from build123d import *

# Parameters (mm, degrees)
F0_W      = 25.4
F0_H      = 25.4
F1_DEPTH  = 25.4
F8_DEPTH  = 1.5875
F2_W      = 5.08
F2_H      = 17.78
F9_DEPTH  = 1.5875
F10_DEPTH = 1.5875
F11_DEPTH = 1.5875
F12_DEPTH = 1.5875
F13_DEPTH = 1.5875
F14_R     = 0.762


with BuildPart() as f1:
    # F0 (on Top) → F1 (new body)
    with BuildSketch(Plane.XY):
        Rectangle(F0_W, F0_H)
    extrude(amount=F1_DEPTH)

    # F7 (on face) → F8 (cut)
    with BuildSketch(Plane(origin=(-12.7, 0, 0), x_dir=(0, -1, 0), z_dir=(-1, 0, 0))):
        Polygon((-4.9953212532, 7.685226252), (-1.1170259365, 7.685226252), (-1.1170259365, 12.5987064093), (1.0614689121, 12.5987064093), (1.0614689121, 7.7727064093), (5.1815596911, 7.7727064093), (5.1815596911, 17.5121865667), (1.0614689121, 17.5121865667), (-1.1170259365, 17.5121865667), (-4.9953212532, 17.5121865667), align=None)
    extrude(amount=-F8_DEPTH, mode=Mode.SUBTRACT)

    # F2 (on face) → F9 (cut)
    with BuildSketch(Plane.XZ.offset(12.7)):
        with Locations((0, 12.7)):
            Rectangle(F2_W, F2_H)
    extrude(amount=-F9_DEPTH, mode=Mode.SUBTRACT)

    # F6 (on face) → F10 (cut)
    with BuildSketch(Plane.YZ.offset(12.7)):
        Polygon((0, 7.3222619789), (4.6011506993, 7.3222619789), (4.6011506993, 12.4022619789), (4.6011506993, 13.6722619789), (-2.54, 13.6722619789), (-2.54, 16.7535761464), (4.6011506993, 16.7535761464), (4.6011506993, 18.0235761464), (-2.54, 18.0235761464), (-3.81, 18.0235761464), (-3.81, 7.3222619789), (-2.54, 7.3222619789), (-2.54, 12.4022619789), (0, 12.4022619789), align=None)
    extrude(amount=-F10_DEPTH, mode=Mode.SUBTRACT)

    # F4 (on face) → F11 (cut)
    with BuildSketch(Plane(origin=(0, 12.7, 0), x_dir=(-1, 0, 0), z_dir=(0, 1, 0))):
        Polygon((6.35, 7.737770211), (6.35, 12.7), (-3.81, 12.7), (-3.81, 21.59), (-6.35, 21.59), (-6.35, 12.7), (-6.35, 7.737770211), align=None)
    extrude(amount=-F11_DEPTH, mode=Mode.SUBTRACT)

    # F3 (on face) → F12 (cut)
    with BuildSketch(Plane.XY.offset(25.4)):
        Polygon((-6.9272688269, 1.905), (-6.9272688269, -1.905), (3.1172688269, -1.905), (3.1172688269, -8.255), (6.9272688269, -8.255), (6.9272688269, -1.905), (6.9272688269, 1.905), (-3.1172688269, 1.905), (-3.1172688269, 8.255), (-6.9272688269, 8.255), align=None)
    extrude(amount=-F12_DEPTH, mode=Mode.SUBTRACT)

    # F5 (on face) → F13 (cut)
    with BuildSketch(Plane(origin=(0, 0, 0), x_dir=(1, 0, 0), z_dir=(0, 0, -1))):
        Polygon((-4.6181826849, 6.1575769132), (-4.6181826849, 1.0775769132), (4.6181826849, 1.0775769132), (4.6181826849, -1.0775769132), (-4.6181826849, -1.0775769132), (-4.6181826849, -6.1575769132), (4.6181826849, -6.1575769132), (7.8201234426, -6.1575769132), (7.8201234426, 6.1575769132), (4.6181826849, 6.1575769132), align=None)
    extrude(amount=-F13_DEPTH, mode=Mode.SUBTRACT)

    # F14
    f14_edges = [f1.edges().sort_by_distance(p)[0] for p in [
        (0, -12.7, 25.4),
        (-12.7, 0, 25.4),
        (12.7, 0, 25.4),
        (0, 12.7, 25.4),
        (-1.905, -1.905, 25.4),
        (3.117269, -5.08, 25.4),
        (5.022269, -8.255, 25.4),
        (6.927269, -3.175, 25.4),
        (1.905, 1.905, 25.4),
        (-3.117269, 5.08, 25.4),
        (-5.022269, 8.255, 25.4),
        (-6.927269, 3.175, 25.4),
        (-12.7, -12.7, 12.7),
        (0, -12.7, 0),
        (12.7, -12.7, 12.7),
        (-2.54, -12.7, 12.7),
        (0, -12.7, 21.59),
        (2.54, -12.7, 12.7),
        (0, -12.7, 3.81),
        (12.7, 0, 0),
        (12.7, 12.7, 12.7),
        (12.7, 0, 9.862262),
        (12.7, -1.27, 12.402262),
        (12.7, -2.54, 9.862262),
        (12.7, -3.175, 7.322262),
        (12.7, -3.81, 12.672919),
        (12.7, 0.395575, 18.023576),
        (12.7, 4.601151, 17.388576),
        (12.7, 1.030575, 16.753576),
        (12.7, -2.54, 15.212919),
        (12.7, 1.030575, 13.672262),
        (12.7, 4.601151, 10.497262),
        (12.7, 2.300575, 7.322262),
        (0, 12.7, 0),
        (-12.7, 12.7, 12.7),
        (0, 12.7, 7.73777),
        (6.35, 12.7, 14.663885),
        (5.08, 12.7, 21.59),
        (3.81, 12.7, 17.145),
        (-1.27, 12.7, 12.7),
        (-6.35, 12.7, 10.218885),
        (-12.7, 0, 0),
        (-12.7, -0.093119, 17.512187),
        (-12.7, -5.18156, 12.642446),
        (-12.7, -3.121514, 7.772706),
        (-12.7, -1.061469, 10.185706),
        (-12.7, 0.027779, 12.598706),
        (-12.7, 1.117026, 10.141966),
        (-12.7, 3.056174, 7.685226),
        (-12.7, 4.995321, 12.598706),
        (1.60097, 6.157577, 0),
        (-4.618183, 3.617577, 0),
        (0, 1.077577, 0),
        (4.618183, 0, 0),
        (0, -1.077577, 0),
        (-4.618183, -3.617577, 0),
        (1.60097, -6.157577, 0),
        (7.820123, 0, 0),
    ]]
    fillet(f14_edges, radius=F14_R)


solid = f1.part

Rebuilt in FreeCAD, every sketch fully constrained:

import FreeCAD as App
import Part
import Sketcher
from FreeCAD import Vector
Q = App.Units.Quantity


def edges_at(feature, points):
    """Names of the edges that pass closest to the given points."""
    edges = feature.Shape.Edges
    near = lambda p: min(range(len(edges)), key=lambda i: edges[i].distToShape(Part.Vertex(*p))[0])
    return sorted({f"Edge{near(p) + 1}" for p in points})


def add_polygon(sketch, points):
    """Adds a closed chain of lines whose ends are joined by coincident constraints."""
    first, n = sketch.GeometryCount, len(points)
    for a, b in zip(points, points[1:] + points[:1]):
        sketch.addGeometry(Part.LineSegment(App.Vector(*a, 0), App.Vector(*b, 0)), False)
    for i in range(n):
        sketch.addConstraint(Sketcher.Constraint("Coincident", first + i, 2, first + (i + 1) % n, 1))

doc = App.newDocument("Part")
body = doc.addObject("PartDesign::Body", "Body")

# Sketch on XY plane
sketch1 = doc.addObject("Sketcher::SketchObject", "Sketch")
body.addObject(sketch1)
sketch1.AttachmentSupport = (doc.XY_Plane, [""])
sketch1.MapMode = "FlatFace"
add_polygon(sketch1, [(-13, 13), (-13, -13), (13, -13), (13, 13)])  # lines 0-3
sketch1.addConstraint([
    Sketcher.Constraint("Vertical", 0),
    Sketcher.Constraint("Horizontal", 1),
    Sketcher.Constraint("Vertical", 2),
    Sketcher.Constraint("Horizontal", 3),
    Sketcher.Constraint("Symmetric", 0, 2, 2, 2, -1, 1),
    Sketcher.Constraint("Equal", 3, 0),
    Sketcher.Constraint("DistanceX", 1, 1, 1, 2, Q("1 in")),
])
pad1 = doc.addObject("PartDesign::Pad", "Pad")
body.addObject(pad1)
pad1.Profile = sketch1
pad1.Length = Q("1 in")

# Sketch on YZ plane
sketch2 = doc.addObject("Sketcher::SketchObject", "Sketch001")
body.addObject(sketch2)
sketch2.AttachmentSupport = (doc.YZ_Plane, [""])
sketch2.MapMode = "FlatFace"
sketch2.AttachmentOffset = App.Placement(Vector(0, 0, -0.5 * 25.4), App.Rotation())
add_polygon(sketch2, [(5, 7.7), (1.1, 7.7), (1.1, 12.6), (-1.1, 12.6), (-1.1, 7.8), (-5.2, 7.8), (-5.2, 17.5), (5, 17.5)])  # lines 0-7
sketch2.addConstraint([
    Sketcher.Constraint("Horizontal", 0),
    Sketcher.Constraint("Vertical", 1),
    Sketcher.Constraint("Horizontal", 2),
    Sketcher.Constraint("Vertical", 3),
    Sketcher.Constraint("Horizontal", 4),
    Sketcher.Constraint("Vertical", 5),
    Sketcher.Constraint("Horizontal", 6),
    Sketcher.Constraint("Vertical", 7),
    Sketcher.Constraint("DistanceY", 3, 2, 3, 1, Q("0.19 in")),
    Sketcher.Constraint("DistanceX", 4, 2, 4, 1, 4.120091),
    Sketcher.Constraint("DistanceX", 6, 1, 6, 2, 10.176881),
    Sketcher.Constraint("DistanceY", 1, 1, 1, 2, 4.91348),
    Sketcher.Constraint("DistanceY", 5, 1, 5, 2, 9.73948),
    Sketcher.Constraint("DistanceX", 0, 2, 0, 1, 3.878295),
    Sketcher.Constraint("DistanceX", 2, 2, -1, 1, 1.061469),
    Sketcher.Constraint("DistanceY", -1, 1, 0, 2, 7.685226),
])
pocket1 = doc.addObject("PartDesign::Pocket", "Pocket")
body.addObject(pocket1)
pocket1.Profile = sketch2
pocket1.Length = Q("0.0625 in")
pocket1.Reversed = True

# Sketch on XZ plane
sketch3 = doc.addObject("Sketcher::SketchObject", "Sketch002")
body.addObject(sketch3)
sketch3.AttachmentSupport = (doc.XZ_Plane, [""])
sketch3.MapMode = "FlatFace"
sketch3.AttachmentOffset = App.Placement(Vector(0, 0, 0.5 * 25.4), App.Rotation())
add_polygon(sketch3, [(-3, 22), (-3, 4), (3, 4), (3, 22)])  # lines 0-3
sketch3.addConstraint([
    Sketcher.Constraint("Vertical", 0),
    Sketcher.Constraint("Horizontal", 1),
    Sketcher.Constraint("Vertical", 2),
    Sketcher.Constraint("Horizontal", 3),
    Sketcher.Constraint("DistanceX", 1, 1, 1, 2, Q("0.2 in")),
    Sketcher.Constraint("DistanceY", 0, 2, 0, 1, Q("0.7 in")),
    Sketcher.Constraint("DistanceX", 0, 2, -1, 1, Q("0.1 in")),
    Sketcher.Constraint("DistanceY", -1, 1, 0, 2, Q("0.15 in")),
])
pocket2 = doc.addObject("PartDesign::Pocket", "Pocket001")
body.addObject(pocket2)
pocket2.Profile = sketch3
pocket2.Length = Q("0.0625 in")

# Sketch on YZ plane
sketch4 = doc.addObject("Sketcher::SketchObject", "Sketch003")
body.addObject(sketch4)
sketch4.AttachmentSupport = (doc.YZ_Plane, [""])
sketch4.MapMode = "FlatFace"
sketch4.AttachmentOffset = App.Placement(Vector(0, 0, 0.5 * 25.4), App.Rotation())
add_polygon(sketch4, [(0, 7.3), (4.6, 7.3), (4.6, 13.7), (-2.5, 13.7), (-2.5, 16.8), (4.6, 16.8), (4.6, 18), (-3.8, 18), (-3.8, 7.3), (-2.5, 7.3), (-2.5, 12.4), (0, 12.4)])  # lines 0-11
sketch4.addConstraint([
    Sketcher.Constraint("Horizontal", 0),
    Sketcher.Constraint("Vertical", 1),
    Sketcher.Constraint("Horizontal", 2),
    Sketcher.Constraint("Vertical", 3),
    Sketcher.Constraint("Horizontal", 4),
    Sketcher.Constraint("Vertical", 5),
    Sketcher.Constraint("Horizontal", 6),
    Sketcher.Constraint("Vertical", 7),
    Sketcher.Constraint("Horizontal", 8),
    Sketcher.Constraint("Vertical", 9),
    Sketcher.Constraint("Horizontal", 10),
    Sketcher.Constraint("Vertical", 11),
    Sketcher.Constraint("PointOnObject", 10, 2, -2),
    Sketcher.Constraint("Horizontal", 0, 2, 7, 2),
    Sketcher.Constraint("Vertical", 1, 2, 4, 2),
    Sketcher.Constraint("Vertical", 3, 2, 8, 2),
    Sketcher.Constraint("Equal", 8, 5),
    Sketcher.Constraint("DistanceX", 10, 1, 10, 2, Q("0.1 in")),
    Sketcher.Constraint("DistanceY", 9, 1, 9, 2, Q("0.2 in")),
    Sketcher.Constraint("DistanceX", 8, 1, 8, 2, Q("0.05 in")),
    Sketcher.Constraint("DistanceY", 1, 1, 1, 2, Q("0.25 in")),
    Sketcher.Constraint("DistanceX", 0, 1, 0, 2, 4.601151),
    Sketcher.Constraint("DistanceY", 3, 1, 3, 2, 3.081314),
    Sketcher.Constraint("DistanceY", -1, 1, 0, 2, 7.322262),
])
pocket3 = doc.addObject("PartDesign::Pocket", "Pocket002")
body.addObject(pocket3)
pocket3.Profile = sketch4
pocket3.Length = Q("0.0625 in")

# Sketch on XZ plane
sketch5 = doc.addObject("Sketcher::SketchObject", "Sketch004")
body.addObject(sketch5)
sketch5.AttachmentSupport = (doc.XZ_Plane, [""])
sketch5.MapMode = "FlatFace"
sketch5.AttachmentOffset = App.Placement(Vector(0, 0, -0.5 * 25.4), App.Rotation())
add_polygon(sketch5, [(-6.3, 7.7), (-6.3, 12.7), (3.8, 12.7), (3.8, 21.6), (6.3, 21.6), (6.3, 7.7)])  # lines 0-5
sketch5.addConstraint([
    Sketcher.Constraint("Vertical", 0),
    Sketcher.Constraint("Horizontal", 1),
    Sketcher.Constraint("Vertical", 2),
    Sketcher.Constraint("Horizontal", 3),
    Sketcher.Constraint("Vertical", 4),
    Sketcher.Constraint("Horizontal", 5),
    Sketcher.Constraint("DistanceX", 1, 1, 1, 2, Q("0.4 in")),
    Sketcher.Constraint("DistanceX", 3, 1, 3, 2, Q("0.1 in")),
    Sketcher.Constraint("DistanceY", 2, 1, 2, 2, Q("0.35 in")),
    Sketcher.Constraint("DistanceY", -1, 1, 0, 2, Q("0.5 in")),
    Sketcher.Constraint("DistanceX", 0, 2, -1, 1, Q("0.25 in")),
    Sketcher.Constraint("DistanceY", 0, 1, 0, 2, 4.96223),
])
pocket4 = doc.addObject("PartDesign::Pocket", "Pocket003")
body.addObject(pocket4)
pocket4.Profile = sketch5
pocket4.Length = Q("0.0625 in")
pocket4.Reversed = True

# Sketch on XY plane
sketch6 = doc.addObject("Sketcher::SketchObject", "Sketch005")
body.addObject(sketch6)
sketch6.AttachmentSupport = (doc.XY_Plane, [""])
sketch6.MapMode = "FlatFace"
sketch6.AttachmentOffset = App.Placement(Vector(0, 0, 1 * 25.4), App.Rotation())
add_polygon(sketch6, [(-6.9, -1.9), (3.1, -1.9), (3.1, -8.3), (6.9, -8.3), (6.9, 1.9), (-3.1, 1.9), (-3.1, 8.3), (-6.9, 8.3)])  # lines 0-7
sketch6.addConstraint([
    Sketcher.Constraint("Horizontal", 0),
    Sketcher.Constraint("Vertical", 1),
    Sketcher.Constraint("Horizontal", 2),
    Sketcher.Constraint("Vertical", 3),
    Sketcher.Constraint("Horizontal", 4),
    Sketcher.Constraint("Vertical", 5),
    Sketcher.Constraint("Horizontal", 6),
    Sketcher.Constraint("Vertical", 7),
    Sketcher.Constraint("Symmetric", 0, 2, 4, 2, -1, 1),
    Sketcher.Constraint("Symmetric", 2, 2, 6, 2, -1, 1),
    Sketcher.Constraint("DistanceY", 3, 1, 3, 2, Q("0.4 in")),
    Sketcher.Constraint("DistanceX", 2, 1, 2, 2, Q("0.15 in")),
    Sketcher.Constraint("DistanceY", 1, 2, 1, 1, Q("0.25 in")),
    Sketcher.Constraint("DistanceX", 0, 1, 0, 2, 10.044538),
])
pocket5 = doc.addObject("PartDesign::Pocket", "Pocket004")
body.addObject(pocket5)
pocket5.Profile = sketch6
pocket5.Length = Q("0.0625 in")

# Sketch on XY plane
sketch7 = doc.addObject("Sketcher::SketchObject", "Sketch006")
body.addObject(sketch7)
sketch7.AttachmentSupport = (doc.XY_Plane, [""])
sketch7.MapMode = "FlatFace"
add_polygon(sketch7, [(-4.6, -6.2), (-4.6, -1.1), (4.6, -1.1), (4.6, 1.1), (-4.6, 1.1), (-4.6, 6.2), (7.8, 6.2), (7.8, -6.2)])  # lines 0-7
sketch7.addConstraint([
    Sketcher.Constraint("Vertical", 0),
    Sketcher.Constraint("Horizontal", 1),
    Sketcher.Constraint("Vertical", 2),
    Sketcher.Constraint("Horizontal", 3),
    Sketcher.Constraint("Vertical", 4),
    Sketcher.Constraint("Horizontal", 5),
    Sketcher.Constraint("Vertical", 6),
    Sketcher.Constraint("Horizontal", 7),
    Sketcher.Constraint("Symmetric", 0, 2, 2, 2, -1, 1),
    Sketcher.Constraint("Symmetric", 4, 2, 7, 2, -1),
    Sketcher.Constraint("DistanceY", 0, 1, 0, 2, Q("0.2 in")),
    Sketcher.Constraint("DistanceX", 1, 1, 1, 2, 9.236365),
    Sketcher.Constraint("DistanceX", 5, 1, 5, 2, 12.438306),
    Sketcher.Constraint("DistanceY", 2, 1, 2, 2, 2.155154),
])
pocket6 = doc.addObject("PartDesign::Pocket", "Pocket005")
body.addObject(pocket6)
pocket6.Profile = sketch7
pocket6.Length = Q("0.0625 in")
pocket6.Reversed = True
doc.recompute()

fillet = doc.addObject("PartDesign::Fillet", "Fillet")
body.addObject(fillet)
fillet.Base = (pocket6, edges_at(pocket6, [
    (0, -12.7, 25.4),
    (-12.7, 0, 25.4),
    (12.7, 0, 25.4),
    (0, 12.7, 25.4),
    (-1.905, -1.905, 25.4),
    (3.117, -5.08, 25.4),
    (5.022, -8.255, 25.4),
    (6.927, -3.175, 25.4),
    (1.905, 1.905, 25.4),
    (-3.117, 5.08, 25.4),
    (-5.022, 8.255, 25.4),
    (-6.927, 3.175, 25.4),
    (-12.7, -12.7, 12.7),
    (0, -12.7, 0),
    (12.7, -12.7, 12.7),
    (-2.54, -12.7, 12.7),
    (0, -12.7, 21.59),
    (2.54, -12.7, 12.7),
    (0, -12.7, 3.81),
    (12.7, 0, 0),
    (12.7, 12.7, 12.7),
    (12.7, 0, 9.862),
    (12.7, -1.27, 12.402),
    (12.7, -2.54, 9.862),
    (12.7, -3.175, 7.322),
    (12.7, -3.81, 12.673),
    (12.7, 0.396, 18.024),
    (12.7, 4.601, 17.389),
    (12.7, 1.031, 16.754),
    (12.7, -2.54, 15.213),
    (12.7, 1.031, 13.672),
    (12.7, 4.601, 10.497),
    (12.7, 2.301, 7.322),
    (0, 12.7, 0),
    (-12.7, 12.7, 12.7),
    (0, 12.7, 7.738),
    (6.35, 12.7, 14.664),
    (5.08, 12.7, 21.59),
    (3.81, 12.7, 17.145),
    (-1.27, 12.7, 12.7),
    (-6.35, 12.7, 10.219),
    (-12.7, 0, 0),
    (-12.7, -0.093, 17.512),
    (-12.7, -5.182, 12.642),
    (-12.7, -3.122, 7.773),
    (-12.7, -1.061, 10.186),
    (-12.7, 0.028, 12.599),
    (-12.7, 1.117, 10.142),
    (-12.7, 3.056, 7.685),
    (-12.7, 4.995, 12.599),
    (1.601, 6.158, 0),
    (-4.618, 3.618, 0),
    (0, 1.078, 0),
    (4.618, 0, 0),
    (0, -1.078, 0),
    (-4.618, -3.618, 0),
    (1.601, -6.158, 0),
    (7.82, 0, 0),
]))
fillet.Radius = Q("0.03 in")

doc.recompute()
